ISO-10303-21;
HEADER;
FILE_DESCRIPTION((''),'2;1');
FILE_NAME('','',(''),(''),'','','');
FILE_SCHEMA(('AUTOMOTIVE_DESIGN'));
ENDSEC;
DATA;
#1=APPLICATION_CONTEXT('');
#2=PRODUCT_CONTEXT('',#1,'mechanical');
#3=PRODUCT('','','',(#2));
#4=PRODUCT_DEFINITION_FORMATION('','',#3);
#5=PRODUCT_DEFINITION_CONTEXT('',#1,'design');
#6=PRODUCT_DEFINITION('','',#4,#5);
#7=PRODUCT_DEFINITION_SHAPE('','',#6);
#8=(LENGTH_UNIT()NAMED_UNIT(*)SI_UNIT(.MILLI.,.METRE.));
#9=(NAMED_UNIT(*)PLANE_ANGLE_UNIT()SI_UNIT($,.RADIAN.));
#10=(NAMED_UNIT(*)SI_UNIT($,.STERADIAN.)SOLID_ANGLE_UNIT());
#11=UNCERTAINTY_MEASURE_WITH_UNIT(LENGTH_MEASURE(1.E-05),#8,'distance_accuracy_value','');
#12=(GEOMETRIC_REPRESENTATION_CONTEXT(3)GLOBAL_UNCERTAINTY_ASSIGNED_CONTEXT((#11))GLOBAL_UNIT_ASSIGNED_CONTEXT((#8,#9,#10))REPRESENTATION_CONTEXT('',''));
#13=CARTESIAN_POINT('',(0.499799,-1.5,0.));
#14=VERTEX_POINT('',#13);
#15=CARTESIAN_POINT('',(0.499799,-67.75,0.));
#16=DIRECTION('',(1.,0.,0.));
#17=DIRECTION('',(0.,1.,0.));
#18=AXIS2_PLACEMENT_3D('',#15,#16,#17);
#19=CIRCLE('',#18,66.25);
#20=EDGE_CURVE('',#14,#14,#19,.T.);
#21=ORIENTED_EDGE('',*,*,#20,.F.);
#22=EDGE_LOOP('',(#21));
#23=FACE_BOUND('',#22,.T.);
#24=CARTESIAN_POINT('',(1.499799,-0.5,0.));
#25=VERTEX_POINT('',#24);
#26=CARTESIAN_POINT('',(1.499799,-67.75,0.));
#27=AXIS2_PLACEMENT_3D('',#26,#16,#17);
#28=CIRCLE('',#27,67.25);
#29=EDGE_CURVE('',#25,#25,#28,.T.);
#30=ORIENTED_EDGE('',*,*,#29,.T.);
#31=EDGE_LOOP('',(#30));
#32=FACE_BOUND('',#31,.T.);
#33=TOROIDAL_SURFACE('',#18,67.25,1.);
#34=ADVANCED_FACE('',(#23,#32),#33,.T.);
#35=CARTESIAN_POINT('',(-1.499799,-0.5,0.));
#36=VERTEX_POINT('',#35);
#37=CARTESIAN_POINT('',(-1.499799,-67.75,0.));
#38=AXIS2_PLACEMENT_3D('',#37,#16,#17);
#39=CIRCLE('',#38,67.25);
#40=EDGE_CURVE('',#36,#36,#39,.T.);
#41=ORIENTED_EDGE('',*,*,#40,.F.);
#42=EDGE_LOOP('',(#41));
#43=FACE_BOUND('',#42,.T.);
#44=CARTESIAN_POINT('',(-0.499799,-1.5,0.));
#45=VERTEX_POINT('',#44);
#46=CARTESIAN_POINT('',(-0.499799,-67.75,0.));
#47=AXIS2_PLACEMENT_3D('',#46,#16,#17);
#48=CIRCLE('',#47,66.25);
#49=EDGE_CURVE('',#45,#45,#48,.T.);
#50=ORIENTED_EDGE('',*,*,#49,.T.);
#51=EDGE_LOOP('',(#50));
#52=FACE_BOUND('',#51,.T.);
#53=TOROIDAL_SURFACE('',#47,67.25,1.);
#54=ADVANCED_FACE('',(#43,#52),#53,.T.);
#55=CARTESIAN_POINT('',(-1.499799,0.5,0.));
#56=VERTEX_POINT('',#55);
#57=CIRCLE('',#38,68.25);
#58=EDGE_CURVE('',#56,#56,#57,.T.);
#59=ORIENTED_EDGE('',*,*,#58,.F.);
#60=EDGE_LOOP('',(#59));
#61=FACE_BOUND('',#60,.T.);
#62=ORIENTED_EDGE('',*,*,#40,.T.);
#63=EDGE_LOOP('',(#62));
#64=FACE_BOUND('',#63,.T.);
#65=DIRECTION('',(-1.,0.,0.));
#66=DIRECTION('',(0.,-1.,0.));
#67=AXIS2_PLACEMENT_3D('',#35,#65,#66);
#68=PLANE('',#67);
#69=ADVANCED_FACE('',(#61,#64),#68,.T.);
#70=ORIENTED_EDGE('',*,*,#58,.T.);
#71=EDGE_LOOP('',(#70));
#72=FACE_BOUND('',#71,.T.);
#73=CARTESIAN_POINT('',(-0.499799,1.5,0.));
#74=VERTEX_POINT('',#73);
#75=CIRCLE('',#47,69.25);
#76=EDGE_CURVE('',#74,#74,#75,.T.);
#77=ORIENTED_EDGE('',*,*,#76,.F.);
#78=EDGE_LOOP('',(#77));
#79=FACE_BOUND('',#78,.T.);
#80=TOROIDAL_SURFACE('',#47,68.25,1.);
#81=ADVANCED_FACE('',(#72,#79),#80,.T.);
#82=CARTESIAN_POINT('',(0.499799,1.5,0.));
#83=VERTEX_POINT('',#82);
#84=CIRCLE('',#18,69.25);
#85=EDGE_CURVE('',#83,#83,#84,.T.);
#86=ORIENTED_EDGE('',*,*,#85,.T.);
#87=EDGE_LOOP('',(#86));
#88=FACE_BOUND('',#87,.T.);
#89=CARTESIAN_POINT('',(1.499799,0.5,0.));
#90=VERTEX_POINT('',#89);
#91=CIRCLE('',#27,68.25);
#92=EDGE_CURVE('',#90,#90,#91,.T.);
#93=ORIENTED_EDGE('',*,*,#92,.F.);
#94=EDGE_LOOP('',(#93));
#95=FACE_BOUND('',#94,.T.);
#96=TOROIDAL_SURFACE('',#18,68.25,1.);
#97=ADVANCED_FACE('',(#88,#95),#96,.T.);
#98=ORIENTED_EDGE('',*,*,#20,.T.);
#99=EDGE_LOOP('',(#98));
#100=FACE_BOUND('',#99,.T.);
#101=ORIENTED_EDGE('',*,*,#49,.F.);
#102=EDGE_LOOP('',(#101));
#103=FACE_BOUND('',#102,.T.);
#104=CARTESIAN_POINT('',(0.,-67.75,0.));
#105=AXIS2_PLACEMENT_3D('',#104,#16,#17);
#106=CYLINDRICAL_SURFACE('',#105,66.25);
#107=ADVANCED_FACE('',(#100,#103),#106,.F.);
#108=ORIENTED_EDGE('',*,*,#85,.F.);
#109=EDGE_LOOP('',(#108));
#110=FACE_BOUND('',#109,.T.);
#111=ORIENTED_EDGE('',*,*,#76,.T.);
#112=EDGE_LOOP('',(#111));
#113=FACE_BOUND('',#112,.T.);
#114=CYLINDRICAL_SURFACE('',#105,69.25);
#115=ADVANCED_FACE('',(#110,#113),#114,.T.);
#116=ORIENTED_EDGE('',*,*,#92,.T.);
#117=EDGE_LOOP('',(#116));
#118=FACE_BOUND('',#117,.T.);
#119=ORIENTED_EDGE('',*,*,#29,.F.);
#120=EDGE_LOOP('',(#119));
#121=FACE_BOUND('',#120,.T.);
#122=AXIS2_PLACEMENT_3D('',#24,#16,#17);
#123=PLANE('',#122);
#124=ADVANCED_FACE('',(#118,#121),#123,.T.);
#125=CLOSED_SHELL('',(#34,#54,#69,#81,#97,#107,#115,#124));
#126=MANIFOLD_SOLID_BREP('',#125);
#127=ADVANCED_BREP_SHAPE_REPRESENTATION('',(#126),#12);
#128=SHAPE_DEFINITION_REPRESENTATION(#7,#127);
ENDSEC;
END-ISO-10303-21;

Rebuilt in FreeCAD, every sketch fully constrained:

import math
import FreeCAD as App
import Part
import Sketcher

V = App.Vector

doc = App.newDocument("Part")
body = doc.addObject("PartDesign::Body", "Body")

# Sketch on XY plane
sketch1 = body.newObject("Sketcher::SketchObject", "Sketch")
sketch1.AttachmentSupport = (doc.getObject("XY_Plane"), [""])
sketch1.MapMode = "FlatFace"
sketch1.addGeometry(Part.LineSegment(V(-0.5, -1.5, 0), V(0.5, -1.5, 0)), False)
sketch1.addGeometry(Part.ArcOfCircle(Part.Circle(V(0.5, -0.5, 0), V(0, 0, 1), 1), math.radians(-90), math.radians(0)), False)
sketch1.addGeometry(Part.LineSegment(V(1.5, -0.5, 0), V(1.5, 0.5, 0)), False)
sketch1.addGeometry(Part.ArcOfCircle(Part.Circle(V(0.5, 0.5, 0), V(0, 0, 1), 1), math.radians(0), math.radians(90)), False)
sketch1.addGeometry(Part.LineSegment(V(0.5, 1.5, 0), V(-0.5, 1.5, 0)), False)
sketch1.addGeometry(Part.ArcOfCircle(Part.Circle(V(-0.5, 0.5, 0), V(0, 0, 1), 1), math.radians(90), math.radians(180)), False)
sketch1.addGeometry(Part.LineSegment(V(-1.5, 0.5, 0), V(-1.5, -0.5, 0)), False)
sketch1.addGeometry(Part.ArcOfCircle(Part.Circle(V(-0.5, -0.5, 0), V(0, 0, 1), 1), math.radians(-180), math.radians(-90)), False)
sketch1.addGeometry(Part.LineSegment(V(1.5, -67.8, 0), V(-1.5, -67.8, 0)), True)  # axis
sketch1.addConstraint(Sketcher.Constraint("Tangent", 0, 2, 1, 1))
sketch1.addConstraint(Sketcher.Constraint("Tangent", 1, 2, 2, 1))
sketch1.addConstraint(Sketcher.Constraint("Tangent", 2, 2, 3, 1))
sketch1.addConstraint(Sketcher.Constraint("Tangent", 3, 2, 4, 1))
sketch1.addConstraint(Sketcher.Constraint("Tangent", 4, 2, 5, 1))
sketch1.addConstraint(Sketcher.Constraint("Tangent", 5, 2, 6, 1))
sketch1.addConstraint(Sketcher.Constraint("Tangent", 6, 2, 7, 1))
sketch1.addConstraint(Sketcher.Constraint("Tangent", 7, 2, 0, 1))
sketch1.addConstraint(Sketcher.Constraint("Horizontal", 0))
sketch1.addConstraint(Sketcher.Constraint("Vertical", 2))
sketch1.addConstraint(Sketcher.Constraint("Horizontal", 4))
sketch1.addConstraint(Sketcher.Constraint("Vertical", 6))
sketch1.addConstraint(Sketcher.Constraint("Horizontal", 8))
sketch1.addConstraint(Sketcher.Constraint("Equal", 1, 3))
sketch1.addConstraint(Sketcher.Constraint("Equal", 3, 5))
sketch1.addConstraint(Sketcher.Constraint("Equal", 5, 7))
sketch1.addConstraint(Sketcher.Constraint("Symmetric", 1, 3, 5, 3, -1, 1))
sketch1.addConstraint(Sketcher.Constraint("Vertical", 2, 2, 8, 1))
sketch1.addConstraint(Sketcher.Constraint("Vertical", 6, 2, 8, 2))
sketch1.addConstraint(Sketcher.Constraint("Radius", 1, 1.0))
sketch1.addConstraint(Sketcher.Constraint("DistanceY", 2, 1, 2, 2, 1.0))
sketch1.addConstraint(Sketcher.Constraint("DistanceY", 8, 1, -1, 1, 67.75))
sketch1.addConstraint(Sketcher.Constraint("DistanceX", -1, 1, 1, 3, 0.499799))
revolution = body.newObject("PartDesign::Revolution", "Revolution")
revolution.Profile = sketch1
revolution.ReferenceAxis = (sketch1, ["Axis0"])
revolution.Angle = 360

doc.recompute()
